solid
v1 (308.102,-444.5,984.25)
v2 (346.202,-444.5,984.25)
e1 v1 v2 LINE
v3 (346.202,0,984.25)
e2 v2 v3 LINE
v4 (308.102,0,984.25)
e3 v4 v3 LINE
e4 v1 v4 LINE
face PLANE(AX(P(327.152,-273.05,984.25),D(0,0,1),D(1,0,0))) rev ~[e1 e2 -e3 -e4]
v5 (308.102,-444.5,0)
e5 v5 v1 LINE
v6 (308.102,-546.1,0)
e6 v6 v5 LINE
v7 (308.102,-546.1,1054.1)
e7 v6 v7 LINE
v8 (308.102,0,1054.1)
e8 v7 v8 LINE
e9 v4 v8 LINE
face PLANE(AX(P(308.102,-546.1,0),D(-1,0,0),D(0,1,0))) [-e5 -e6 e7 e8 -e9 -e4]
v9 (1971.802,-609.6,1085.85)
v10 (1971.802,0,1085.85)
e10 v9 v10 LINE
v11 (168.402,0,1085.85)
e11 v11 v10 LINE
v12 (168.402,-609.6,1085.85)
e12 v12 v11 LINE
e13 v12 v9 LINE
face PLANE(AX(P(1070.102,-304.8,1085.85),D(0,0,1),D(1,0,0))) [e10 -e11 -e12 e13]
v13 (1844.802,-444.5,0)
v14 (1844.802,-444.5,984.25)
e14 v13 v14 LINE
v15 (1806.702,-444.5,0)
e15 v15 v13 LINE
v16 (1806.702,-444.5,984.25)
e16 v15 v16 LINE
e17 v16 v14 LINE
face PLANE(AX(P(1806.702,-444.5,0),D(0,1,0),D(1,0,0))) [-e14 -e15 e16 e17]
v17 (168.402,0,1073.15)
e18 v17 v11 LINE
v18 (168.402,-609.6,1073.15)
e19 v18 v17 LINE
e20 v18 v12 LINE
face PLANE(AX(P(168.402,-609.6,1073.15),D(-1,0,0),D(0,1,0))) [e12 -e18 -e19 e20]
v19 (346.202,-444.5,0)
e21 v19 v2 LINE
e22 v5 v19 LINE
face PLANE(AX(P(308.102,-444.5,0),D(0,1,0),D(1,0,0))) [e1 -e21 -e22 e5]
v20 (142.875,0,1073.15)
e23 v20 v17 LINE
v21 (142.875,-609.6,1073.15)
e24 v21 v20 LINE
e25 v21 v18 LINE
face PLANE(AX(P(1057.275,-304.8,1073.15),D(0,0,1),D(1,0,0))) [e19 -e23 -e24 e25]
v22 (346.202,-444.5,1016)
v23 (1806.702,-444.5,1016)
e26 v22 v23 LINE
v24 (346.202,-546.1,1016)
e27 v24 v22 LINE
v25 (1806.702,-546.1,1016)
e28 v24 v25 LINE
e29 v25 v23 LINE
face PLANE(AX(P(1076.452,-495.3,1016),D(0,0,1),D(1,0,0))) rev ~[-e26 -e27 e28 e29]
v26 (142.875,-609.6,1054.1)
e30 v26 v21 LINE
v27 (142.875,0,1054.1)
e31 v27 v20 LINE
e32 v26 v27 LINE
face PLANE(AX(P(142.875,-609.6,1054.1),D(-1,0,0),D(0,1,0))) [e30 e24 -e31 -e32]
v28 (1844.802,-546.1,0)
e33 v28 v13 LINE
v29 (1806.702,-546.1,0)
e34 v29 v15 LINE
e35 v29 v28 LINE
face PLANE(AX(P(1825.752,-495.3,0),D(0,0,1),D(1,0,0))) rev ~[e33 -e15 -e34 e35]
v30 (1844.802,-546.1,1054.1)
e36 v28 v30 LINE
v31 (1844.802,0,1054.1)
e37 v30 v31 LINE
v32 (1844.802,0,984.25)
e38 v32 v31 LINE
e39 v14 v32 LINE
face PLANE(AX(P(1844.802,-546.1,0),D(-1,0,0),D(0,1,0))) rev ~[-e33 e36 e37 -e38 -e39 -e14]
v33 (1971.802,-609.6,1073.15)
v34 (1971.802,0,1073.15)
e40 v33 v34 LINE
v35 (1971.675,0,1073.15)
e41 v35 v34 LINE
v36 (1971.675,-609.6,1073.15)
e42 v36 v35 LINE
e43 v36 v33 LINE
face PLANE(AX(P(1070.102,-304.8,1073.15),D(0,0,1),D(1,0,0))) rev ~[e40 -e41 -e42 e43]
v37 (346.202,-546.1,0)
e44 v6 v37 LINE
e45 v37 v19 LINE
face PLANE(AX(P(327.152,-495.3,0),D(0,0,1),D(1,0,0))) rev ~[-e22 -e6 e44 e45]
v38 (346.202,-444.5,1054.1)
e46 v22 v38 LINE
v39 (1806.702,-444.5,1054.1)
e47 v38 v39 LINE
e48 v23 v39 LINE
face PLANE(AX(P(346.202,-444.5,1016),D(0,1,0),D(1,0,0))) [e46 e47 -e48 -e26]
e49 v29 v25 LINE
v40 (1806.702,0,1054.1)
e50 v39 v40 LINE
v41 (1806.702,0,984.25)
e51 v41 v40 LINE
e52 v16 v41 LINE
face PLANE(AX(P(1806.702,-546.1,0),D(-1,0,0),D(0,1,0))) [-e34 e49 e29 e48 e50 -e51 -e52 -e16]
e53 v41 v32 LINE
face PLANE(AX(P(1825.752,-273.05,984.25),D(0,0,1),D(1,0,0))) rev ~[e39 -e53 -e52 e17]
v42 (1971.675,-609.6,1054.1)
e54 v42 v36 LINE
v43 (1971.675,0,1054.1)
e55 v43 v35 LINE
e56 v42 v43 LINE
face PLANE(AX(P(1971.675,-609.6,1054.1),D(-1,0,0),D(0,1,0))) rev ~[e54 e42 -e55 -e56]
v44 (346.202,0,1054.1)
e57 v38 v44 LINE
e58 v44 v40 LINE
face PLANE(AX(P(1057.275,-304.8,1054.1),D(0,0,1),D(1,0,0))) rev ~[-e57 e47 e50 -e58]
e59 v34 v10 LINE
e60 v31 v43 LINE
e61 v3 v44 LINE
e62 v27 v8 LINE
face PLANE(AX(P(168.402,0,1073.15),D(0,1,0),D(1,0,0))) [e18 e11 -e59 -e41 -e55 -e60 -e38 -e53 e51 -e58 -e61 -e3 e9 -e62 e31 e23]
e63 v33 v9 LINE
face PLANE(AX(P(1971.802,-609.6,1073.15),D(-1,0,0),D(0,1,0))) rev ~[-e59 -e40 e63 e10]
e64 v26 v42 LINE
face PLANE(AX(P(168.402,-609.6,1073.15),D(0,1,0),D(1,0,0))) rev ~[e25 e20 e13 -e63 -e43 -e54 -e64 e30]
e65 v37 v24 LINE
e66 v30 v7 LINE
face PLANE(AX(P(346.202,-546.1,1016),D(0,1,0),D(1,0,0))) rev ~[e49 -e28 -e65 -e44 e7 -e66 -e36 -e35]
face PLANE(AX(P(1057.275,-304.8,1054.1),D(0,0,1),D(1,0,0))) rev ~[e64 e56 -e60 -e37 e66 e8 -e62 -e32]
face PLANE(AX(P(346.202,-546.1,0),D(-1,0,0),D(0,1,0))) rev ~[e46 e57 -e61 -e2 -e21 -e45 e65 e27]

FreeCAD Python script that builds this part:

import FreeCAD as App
import Part
import Sketcher
from FreeCAD import Vector
Q = App.Units.Quantity


def add_polygon(sketch, points):
    """Adds a closed chain of lines whose ends are joined by coincident constraints."""
    first, n = sketch.GeometryCount, len(points)
    for a, b in zip(points, points[1:] + points[:1]):
        sketch.addGeometry(Part.LineSegment(App.Vector(*a, 0), App.Vector(*b, 0)), False)
    for i in range(n):
        sketch.addConstraint(Sketcher.Constraint("Coincident", first + i, 2, first + (i + 1) % n, 1))

doc = App.newDocument("Part")
params = doc.addObject("Spreadsheet::Sheet", "Params")
for row, (alias, value) in enumerate([
    ("sketch1_width", "1.5 in"),
    ("sketch1_height", "21.5 in"),
    ("pad1_length", "2.75 in"),
    ("sketch2_height", "4 in"),
    ("sketch2_width", "1.5 in"),
    ("pad2_length", "41.5 in"),
    ("sketch3_width", "1.5 in"),
    ("sketch3_height", "21.5 in"),
    ("pad3_length", "2.75 in"),
    ("sketch4_height", "4 in"),
    ("sketch4_width", "1.5 in"),
    ("pad4_length", "41.5 in"),
    ("sketch5_height", "4 in"),
    ("sketch5_width", "57.5 in"),
    ("pad5_length", "1.5 in"),
    ("sketch6_width", "71 in"),
    ("sketch6_height", "24 in"),
    ("pad6_length", "0.5 in"),
    ("sketch7_width", "72 in"),
    ("sketch7_height", "24 in"),
    ("pad7_length", "0.75 in"),
], start=1):
    params.set(f"A{row}", alias)
    params.set(f"B{row}", "=" + value)
    params.setAlias(f"B{row}", alias)

body = doc.addObject("PartDesign::Body", "Body")

# Sketch on XY plane
sketch1 = doc.addObject("Sketcher::SketchObject", "Sketch")
body.addObject(sketch1)
sketch1.AttachmentSupport = (doc.XY_Plane, [""])
sketch1.MapMode = "FlatFace"
sketch1.AttachmentOffset = App.Placement(Vector(0, 0, 38.75 * 25.4), App.Rotation())
add_polygon(sketch1, [(308.102, 0), (308.102, -546.1), (346.202, -546.1), (346.202, 0)])  # lines 0-3
sketch1.addConstraint(Sketcher.Constraint("Vertical", 0))
sketch1.addConstraint(Sketcher.Constraint("Horizontal", 1))
sketch1.addConstraint(Sketcher.Constraint("Vertical", 2))
sketch1.addConstraint(Sketcher.Constraint("Horizontal", 3))
sketch1.addConstraint(Sketcher.Constraint("PointOnObject", 2, 2, -1))
sketch1.addConstraint(Sketcher.Constraint("DistanceX", 1, 1, 1, 2, Q("1.5 in")))
sketch1.addConstraint(Sketcher.Constraint("DistanceY", 0, 2, 0, 1, Q("21.5 in")))
sketch1.addConstraint(Sketcher.Constraint("DistanceX", -1, 1, 0, 2, Q("12.13 in")))
sketch1.setExpression("Constraints[9]", "Params.sketch1_width")
sketch1.setExpression("Constraints[10]", "Params.sketch1_height")
pad1 = doc.addObject("PartDesign::Pad", "Pad")
body.addObject(pad1)
pad1.Profile = sketch1
pad1.setExpression("Length", "Params.pad1_length")
body2 = doc.addObject("PartDesign::Body", "Body001")

# Sketch on XY plane
sketch2 = doc.addObject("Sketcher::SketchObject", "Sketch001")
body2.addObject(sketch2)
sketch2.AttachmentSupport = (doc.getObject("XY_Plane001"), [""])
sketch2.MapMode = "FlatFace"
add_polygon(sketch2, [(308.102, -444.5), (308.102, -546.1), (346.202, -546.1), (346.202, -444.5)])  # lines 0-3
sketch2.addConstraint(Sketcher.Constraint("Vertical", 0))
sketch2.addConstraint(Sketcher.Constraint("Horizontal", 1))
sketch2.addConstraint(Sketcher.Constraint("Vertical", 2))
sketch2.addConstraint(Sketcher.Constraint("Horizontal", 3))
sketch2.addConstraint(Sketcher.Constraint("DistanceY", 0, 2, 0, 1, Q("4 in")))
sketch2.addConstraint(Sketcher.Constraint("DistanceX", 1, 1, 1, 2, Q("1.5 in")))
sketch2.addConstraint(Sketcher.Constraint("DistanceY", 0, 2, -1, 1, Q("21.5 in")))
sketch2.addConstraint(Sketcher.Constraint("DistanceX", -1, 1, 0, 2, Q("12.13 in")))
sketch2.setExpression("Constraints[8]", "Params.sketch2_height")
sketch2.setExpression("Constraints[9]", "Params.sketch2_width")
pad2 = doc.addObject("PartDesign::Pad", "Pad001")
body2.addObject(pad2)
pad2.Profile = sketch2
pad2.setExpression("Length", "Params.pad2_length")
doc.recompute()

boolean = doc.addObject("PartDesign::Boolean", "Boolean")
body2.addObject(boolean)
boolean.Type = "Fuse"
boolean.addObjects([body])
body3 = doc.addObject("PartDesign::Body", "Body002")

# Sketch on XY plane
sketch3 = doc.addObject("Sketcher::SketchObject", "Sketch002")
body3.addObject(sketch3)
sketch3.AttachmentSupport = (doc.getObject("XY_Plane002"), [""])
sketch3.MapMode = "FlatFace"
sketch3.AttachmentOffset = App.Placement(Vector(0, 0, 38.75 * 25.4), App.Rotation())
add_polygon(sketch3, [(1806.702, 0), (1806.702, -546.1), (1844.802, -546.1), (1844.802, 0)])  # lines 0-3
sketch3.addConstraint(Sketcher.Constraint("Vertical", 0))
sketch3.addConstraint(Sketcher.Constraint("Horizontal", 1))
sketch3.addConstraint(Sketcher.Constraint("Vertical", 2))
sketch3.addConstraint(Sketcher.Constraint("Horizontal", 3))
sketch3.addConstraint(Sketcher.Constraint("PointOnObject", 2, 2, -1))
sketch3.addConstraint(Sketcher.Constraint("DistanceX", 1, 1, 1, 2, Q("1.5 in")))
sketch3.addConstraint(Sketcher.Constraint("DistanceY", 0, 2, 0, 1, Q("21.5 in")))
sketch3.addConstraint(Sketcher.Constraint("DistanceX", -1, 1, 0, 2, Q("71.13 in")))
sketch3.setExpression("Constraints[9]", "Params.sketch3_width")
sketch3.setExpression("Constraints[10]", "Params.sketch3_height")
pad3 = doc.addObject("PartDesign::Pad", "Pad002")
body3.addObject(pad3)
pad3.Profile = sketch3
pad3.setExpression("Length", "Params.pad3_length")
body4 = doc.addObject("PartDesign::Body", "Body003")

# Sketch on XY plane
sketch4 = doc.addObject("Sketcher::SketchObject", "Sketch003")
body4.addObject(sketch4)
sketch4.AttachmentSupport = (doc.getObject("XY_Plane003"), [""])
sketch4.MapMode = "FlatFace"
add_polygon(sketch4, [(1806.702, -444.5), (1806.702, -546.1), (1844.802, -546.1), (1844.802, -444.5)])  # lines 0-3
sketch4.addConstraint(Sketcher.Constraint("Vertical", 0))
sketch4.addConstraint(Sketcher.Constraint("Horizontal", 1))
sketch4.addConstraint(Sketcher.Constraint("Vertical", 2))
sketch4.addConstraint(Sketcher.Constraint("Horizontal", 3))
sketch4.addConstraint(Sketcher.Constraint("DistanceY", 0, 2, 0, 1, Q("4 in")))
sketch4.addConstraint(Sketcher.Constraint("DistanceX", 1, 1, 1, 2, Q("1.5 in")))
sketch4.addConstraint(Sketcher.Constraint("DistanceY", 0, 2, -1, 1, Q("21.5 in")))
sketch4.addConstraint(Sketcher.Constraint("DistanceX", -1, 1, 0, 2, Q("71.13 in")))
sketch4.setExpression("Constraints[8]", "Params.sketch4_height")
sketch4.setExpression("Constraints[9]", "Params.sketch4_width")
pad4 = doc.addObject("PartDesign::Pad", "Pad003")
body4.addObject(pad4)
pad4.Profile = sketch4
pad4.setExpression("Length", "Params.pad4_length")
doc.recompute()

boolean2 = doc.addObject("PartDesign::Boolean", "Boolean001")
body4.addObject(boolean2)
boolean2.Type = "Fuse"
boolean2.addObjects([body3])
body5 = doc.addObject("PartDesign::Body", "Body004")

# Sketch on XY plane
sketch5 = doc.addObject("Sketcher::SketchObject", "Sketch004")
body5.addObject(sketch5)
sketch5.AttachmentSupport = (doc.getObject("XY_Plane004"), [""])
sketch5.MapMode = "FlatFace"
sketch5.AttachmentOffset = App.Placement(Vector(0, 0, 40 * 25.4), App.Rotation())
add_polygon(sketch5, [(346.202, -444.5), (346.202, -546.1), (1806.702, -546.1), (1806.702, -444.5)])  # lines 0-3
sketch5.addConstraint(Sketcher.Constraint("Vertical", 0))
sketch5.addConstraint(Sketcher.Constraint("Horizontal", 1))
sketch5.addConstraint(Sketcher.Constraint("Vertical", 2))
sketch5.addConstraint(Sketcher.Constraint("Horizontal", 3))
sketch5.addConstraint(Sketcher.Constraint("DistanceY", 0, 2, 0, 1, Q("4 in")))
sketch5.addConstraint(Sketcher.Constraint("DistanceX", 1, 1, 1, 2, Q("57.5 in")))
sketch5.addConstraint(Sketcher.Constraint("DistanceY", 0, 2, -1, 1, Q("21.5 in")))
sketch5.addConstraint(Sketcher.Constraint("DistanceX", -1, 1, 0, 2, Q("13.63 in")))
sketch5.setExpression("Constraints[8]", "Params.sketch5_height")
sketch5.setExpression("Constraints[9]", "Params.sketch5_width")
pad5 = doc.addObject("PartDesign::Pad", "Pad004")
body5.addObject(pad5)
pad5.Profile = sketch5
pad5.setExpression("Length", "Params.pad5_length")
body6 = doc.addObject("PartDesign::Body", "Body005")

# Sketch on XY plane
sketch6 = doc.addObject("Sketcher::SketchObject", "Sketch005")
body6.addObject(sketch6)
sketch6.AttachmentSupport = (doc.getObject("XY_Plane005"), [""])
sketch6.MapMode = "FlatFace"
sketch6.AttachmentOffset = App.Placement(Vector(0, 0, 42.25 * 25.4), App.Rotation())
add_polygon(sketch6, [(168.402, 0), (168.402, -609.6), (1971.802, -609.6), (1971.802, 0)])  # lines 0-3
sketch6.addConstraint(Sketcher.Constraint("Vertical", 0))
sketch6.addConstraint(Sketcher.Constraint("Horizontal", 1))
sketch6.addConstraint(Sketcher.Constraint("Vertical", 2))
sketch6.addConstraint(Sketcher.Constraint("Horizontal", 3))
sketch6.addConstraint(Sketcher.Constraint("PointOnObject", 2, 2, -1))
sketch6.addConstraint(Sketcher.Constraint("DistanceX", 1, 1, 1, 2, Q("71 in")))
sketch6.addConstraint(Sketcher.Constraint("DistanceY", 0, 2, 0, 1, Q("24 in")))
sketch6.addConstraint(Sketcher.Constraint("DistanceX", -1, 1, 0, 2, Q("6.63 in")))
sketch6.setExpression("Constraints[9]", "Params.sketch6_width")
sketch6.setExpression("Constraints[10]", "Params.sketch6_height")
pad6 = doc.addObject("PartDesign::Pad", "Pad005")
body6.addObject(pad6)
pad6.Profile = sketch6
pad6.setExpression("Length", "Params.pad6_length")
body7 = doc.addObject("PartDesign::Body", "Body006")

# Sketch on XY plane
sketch7 = doc.addObject("Sketcher::SketchObject", "Sketch006")
body7.addObject(sketch7)
sketch7.AttachmentSupport = (doc.getObject("XY_Plane006"), [""])
sketch7.MapMode = "FlatFace"
sketch7.AttachmentOffset = App.Placement(Vector(0, 0, 41.5 * 25.4), App.Rotation())
add_polygon(sketch7, [(142.875, 0), (142.875, -609.6), (1971.675, -609.6), (1971.675, 0)])  # lines 0-3
sketch7.addConstraint(Sketcher.Constraint("Vertical", 0))
sketch7.addConstraint(Sketcher.Constraint("Horizontal", 1))
sketch7.addConstraint(Sketcher.Constraint("Vertical", 2))
sketch7.addConstraint(Sketcher.Constraint("Horizontal", 3))
sketch7.addConstraint(Sketcher.Constraint("PointOnObject", 2, 2, -1))
sketch7.addConstraint(Sketcher.Constraint("DistanceX", 1, 1, 1, 2, Q("72 in")))
sketch7.addConstraint(Sketcher.Constraint("DistanceY", 0, 2, 0, 1, Q("24 in")))
sketch7.addConstraint(Sketcher.Constraint("DistanceX", -1, 1, 0, 2, Q("5.625 in")))
sketch7.setExpression("Constraints[9]", "Params.sketch7_width")
sketch7.setExpression("Constraints[10]", "Params.sketch7_height")
pad7 = doc.addObject("PartDesign::Pad", "Pad006")
body7.addObject(pad7)
pad7.Profile = sketch7
pad7.setExpression("Length", "Params.pad7_length")
doc.recompute()

boolean3 = doc.addObject("PartDesign::Boolean", "Boolean002")
body7.addObject(boolean3)
boolean3.Type = "Fuse"
boolean3.addObjects([body6])
doc.recompute()

boolean4 = doc.addObject("PartDesign::Boolean", "Boolean003")
body7.addObject(boolean4)
boolean4.Type = "Fuse"
boolean4.addObjects([body2])
doc.recompute()

boolean5 = doc.addObject("PartDesign::Boolean", "Boolean004")
body7.addObject(boolean5)
boolean5.Type = "Fuse"
boolean5.addObjects([body4])
doc.recompute()

boolean6 = doc.addObject("PartDesign::Boolean", "Boolean005")
body7.addObject(boolean6)
boolean6.Type = "Fuse"
boolean6.addObjects([body5])

doc.recompute()
